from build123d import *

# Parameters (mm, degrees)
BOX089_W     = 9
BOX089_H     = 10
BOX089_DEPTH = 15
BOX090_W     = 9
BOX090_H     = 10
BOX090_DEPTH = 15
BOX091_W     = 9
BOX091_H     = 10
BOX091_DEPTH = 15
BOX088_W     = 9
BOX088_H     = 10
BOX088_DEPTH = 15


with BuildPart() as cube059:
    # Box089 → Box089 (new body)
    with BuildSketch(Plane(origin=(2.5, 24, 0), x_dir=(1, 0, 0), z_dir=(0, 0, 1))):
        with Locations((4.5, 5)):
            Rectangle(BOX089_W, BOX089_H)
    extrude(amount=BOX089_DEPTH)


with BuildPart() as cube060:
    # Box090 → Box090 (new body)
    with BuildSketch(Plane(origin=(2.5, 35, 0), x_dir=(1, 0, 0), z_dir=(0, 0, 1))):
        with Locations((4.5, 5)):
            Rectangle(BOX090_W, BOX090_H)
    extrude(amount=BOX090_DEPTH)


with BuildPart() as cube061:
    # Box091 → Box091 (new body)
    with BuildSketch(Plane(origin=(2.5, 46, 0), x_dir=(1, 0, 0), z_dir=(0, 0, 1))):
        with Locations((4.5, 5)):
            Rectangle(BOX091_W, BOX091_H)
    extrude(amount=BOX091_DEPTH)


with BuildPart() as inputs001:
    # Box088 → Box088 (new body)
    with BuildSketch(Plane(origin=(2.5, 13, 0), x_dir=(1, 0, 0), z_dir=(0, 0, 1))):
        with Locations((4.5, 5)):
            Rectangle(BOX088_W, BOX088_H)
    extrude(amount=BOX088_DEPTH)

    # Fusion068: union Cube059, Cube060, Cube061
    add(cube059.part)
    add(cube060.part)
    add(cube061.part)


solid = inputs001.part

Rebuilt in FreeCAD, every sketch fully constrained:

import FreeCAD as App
import Part
import Sketcher

V = App.Vector


def add_polygon(sketch, points):
    """Adds a closed chain of lines whose ends are joined by coincident constraints."""
    first, n = sketch.GeometryCount, len(points)
    for a, b in zip(points, points[1:] + points[:1]):
        sketch.addGeometry(Part.LineSegment(App.Vector(*a, 0), App.Vector(*b, 0)), False)
    for i in range(n):
        sketch.addConstraint(Sketcher.Constraint("Coincident", first + i, 2, first + (i + 1) % n, 1))

doc = App.newDocument("Part")
body = doc.addObject("PartDesign::Body", "Body")

# Sketch on XY plane
sketch1 = body.newObject("Sketcher::SketchObject", "Sketch")
sketch1.AttachmentSupport = (doc.getObject("XY_Plane"), [""])
sketch1.MapMode = "FlatFace"
add_polygon(sketch1, [(2, 34), (2, 24), (12, 24), (12, 34)])  # lines 0-3
sketch1.addConstraint([
    Sketcher.Constraint("Vertical", 0),
    Sketcher.Constraint("Horizontal", 1),
    Sketcher.Constraint("Vertical", 2),
    Sketcher.Constraint("Horizontal", 3),
    Sketcher.Constraint("DistanceX", 1, 1, 1, 2, 9.0),
    Sketcher.Constraint("DistanceY", 0, 2, 0, 1, 10.0),
    Sketcher.Constraint("DistanceY", -1, 1, 0, 2, 24.0),
    Sketcher.Constraint("DistanceX", -1, 1, 0, 2, 2.5),
])
pad1 = body.newObject("PartDesign::Pad", "Pad")
pad1.Profile = sketch1
pad1.Length = 15
body2 = doc.addObject("PartDesign::Body", "Body001")

# Sketch on XY plane
sketch2 = body2.newObject("Sketcher::SketchObject", "Sketch001")
sketch2.AttachmentSupport = (doc.getObject("XY_Plane001"), [""])
sketch2.MapMode = "FlatFace"
add_polygon(sketch2, [(2, 45), (2, 35), (12, 35), (12, 45)])  # lines 0-3
sketch2.addConstraint([
    Sketcher.Constraint("Vertical", 0),
    Sketcher.Constraint("Horizontal", 1),
    Sketcher.Constraint("Vertical", 2),
    Sketcher.Constraint("Horizontal", 3),
    Sketcher.Constraint("DistanceX", 1, 1, 1, 2, 9.0),
    Sketcher.Constraint("DistanceY", 0, 2, 0, 1, 10.0),
    Sketcher.Constraint("DistanceY", -1, 1, 0, 2, 35.0),
    Sketcher.Constraint("DistanceX", -1, 1, 0, 2, 2.5),
])
pad2 = body2.newObject("PartDesign::Pad", "Pad001")
pad2.Profile = sketch2
pad2.Length = 15
body3 = doc.addObject("PartDesign::Body", "Body002")

# Sketch on XY plane
sketch3 = body3.newObject("Sketcher::SketchObject", "Sketch002")
sketch3.AttachmentSupport = (doc.getObject("XY_Plane002"), [""])
sketch3.MapMode = "FlatFace"
add_polygon(sketch3, [(2, 56), (2, 46), (12, 46), (12, 56)])  # lines 0-3
sketch3.addConstraint([
    Sketcher.Constraint("Vertical", 0),
    Sketcher.Constraint("Horizontal", 1),
    Sketcher.Constraint("Vertical", 2),
    Sketcher.Constraint("Horizontal", 3),
    Sketcher.Constraint("DistanceX", 1, 1, 1, 2, 9.0),
    Sketcher.Constraint("DistanceY", 0, 2, 0, 1, 10.0),
    Sketcher.Constraint("DistanceY", -1, 1, 0, 2, 46.0),
    Sketcher.Constraint("DistanceX", -1, 1, 0, 2, 2.5),
])
pad3 = body3.newObject("PartDesign::Pad", "Pad002")
pad3.Profile = sketch3
pad3.Length = 15
body4 = doc.addObject("PartDesign::Body", "Body003")
body4.AllowCompound = True

# Sketch on XY plane
sketch4 = body4.newObject("Sketcher::SketchObject", "Sketch003")
sketch4.AttachmentSupport = (doc.getObject("XY_Plane003"), [""])
sketch4.MapMode = "FlatFace"
add_polygon(sketch4, [(2, 23), (2, 13), (12, 13), (12, 23)])  # lines 0-3
sketch4.addConstraint([
    Sketcher.Constraint("Vertical", 0),
    Sketcher.Constraint("Horizontal", 1),
    Sketcher.Constraint("Vertical", 2),
    Sketcher.Constraint("Horizontal", 3),
    Sketcher.Constraint("DistanceX", 1, 1, 1, 2, 9.0),
    Sketcher.Constraint("DistanceY", 0, 2, 0, 1, 10.0),
    Sketcher.Constraint("DistanceY", -1, 1, 0, 2, 13.0),
    Sketcher.Constraint("DistanceX", -1, 1, 0, 2, 2.5),
])
pad4 = body4.newObject("PartDesign::Pad", "Pad003")
pad4.Profile = sketch4
pad4.Length = 15
doc.recompute()

boolean = body4.newObject("PartDesign::Boolean", "Boolean")
boolean.Type = "Fuse"
boolean.addObjects([body])
doc.recompute()

boolean2 = body4.newObject("PartDesign::Boolean", "Boolean001")
boolean2.Type = "Fuse"
boolean2.addObjects([body2])
doc.recompute()

boolean3 = body4.newObject("PartDesign::Boolean", "Boolean002")
boolean3.Type = "Fuse"
boolean3.addObjects([body3])

doc.recompute()
